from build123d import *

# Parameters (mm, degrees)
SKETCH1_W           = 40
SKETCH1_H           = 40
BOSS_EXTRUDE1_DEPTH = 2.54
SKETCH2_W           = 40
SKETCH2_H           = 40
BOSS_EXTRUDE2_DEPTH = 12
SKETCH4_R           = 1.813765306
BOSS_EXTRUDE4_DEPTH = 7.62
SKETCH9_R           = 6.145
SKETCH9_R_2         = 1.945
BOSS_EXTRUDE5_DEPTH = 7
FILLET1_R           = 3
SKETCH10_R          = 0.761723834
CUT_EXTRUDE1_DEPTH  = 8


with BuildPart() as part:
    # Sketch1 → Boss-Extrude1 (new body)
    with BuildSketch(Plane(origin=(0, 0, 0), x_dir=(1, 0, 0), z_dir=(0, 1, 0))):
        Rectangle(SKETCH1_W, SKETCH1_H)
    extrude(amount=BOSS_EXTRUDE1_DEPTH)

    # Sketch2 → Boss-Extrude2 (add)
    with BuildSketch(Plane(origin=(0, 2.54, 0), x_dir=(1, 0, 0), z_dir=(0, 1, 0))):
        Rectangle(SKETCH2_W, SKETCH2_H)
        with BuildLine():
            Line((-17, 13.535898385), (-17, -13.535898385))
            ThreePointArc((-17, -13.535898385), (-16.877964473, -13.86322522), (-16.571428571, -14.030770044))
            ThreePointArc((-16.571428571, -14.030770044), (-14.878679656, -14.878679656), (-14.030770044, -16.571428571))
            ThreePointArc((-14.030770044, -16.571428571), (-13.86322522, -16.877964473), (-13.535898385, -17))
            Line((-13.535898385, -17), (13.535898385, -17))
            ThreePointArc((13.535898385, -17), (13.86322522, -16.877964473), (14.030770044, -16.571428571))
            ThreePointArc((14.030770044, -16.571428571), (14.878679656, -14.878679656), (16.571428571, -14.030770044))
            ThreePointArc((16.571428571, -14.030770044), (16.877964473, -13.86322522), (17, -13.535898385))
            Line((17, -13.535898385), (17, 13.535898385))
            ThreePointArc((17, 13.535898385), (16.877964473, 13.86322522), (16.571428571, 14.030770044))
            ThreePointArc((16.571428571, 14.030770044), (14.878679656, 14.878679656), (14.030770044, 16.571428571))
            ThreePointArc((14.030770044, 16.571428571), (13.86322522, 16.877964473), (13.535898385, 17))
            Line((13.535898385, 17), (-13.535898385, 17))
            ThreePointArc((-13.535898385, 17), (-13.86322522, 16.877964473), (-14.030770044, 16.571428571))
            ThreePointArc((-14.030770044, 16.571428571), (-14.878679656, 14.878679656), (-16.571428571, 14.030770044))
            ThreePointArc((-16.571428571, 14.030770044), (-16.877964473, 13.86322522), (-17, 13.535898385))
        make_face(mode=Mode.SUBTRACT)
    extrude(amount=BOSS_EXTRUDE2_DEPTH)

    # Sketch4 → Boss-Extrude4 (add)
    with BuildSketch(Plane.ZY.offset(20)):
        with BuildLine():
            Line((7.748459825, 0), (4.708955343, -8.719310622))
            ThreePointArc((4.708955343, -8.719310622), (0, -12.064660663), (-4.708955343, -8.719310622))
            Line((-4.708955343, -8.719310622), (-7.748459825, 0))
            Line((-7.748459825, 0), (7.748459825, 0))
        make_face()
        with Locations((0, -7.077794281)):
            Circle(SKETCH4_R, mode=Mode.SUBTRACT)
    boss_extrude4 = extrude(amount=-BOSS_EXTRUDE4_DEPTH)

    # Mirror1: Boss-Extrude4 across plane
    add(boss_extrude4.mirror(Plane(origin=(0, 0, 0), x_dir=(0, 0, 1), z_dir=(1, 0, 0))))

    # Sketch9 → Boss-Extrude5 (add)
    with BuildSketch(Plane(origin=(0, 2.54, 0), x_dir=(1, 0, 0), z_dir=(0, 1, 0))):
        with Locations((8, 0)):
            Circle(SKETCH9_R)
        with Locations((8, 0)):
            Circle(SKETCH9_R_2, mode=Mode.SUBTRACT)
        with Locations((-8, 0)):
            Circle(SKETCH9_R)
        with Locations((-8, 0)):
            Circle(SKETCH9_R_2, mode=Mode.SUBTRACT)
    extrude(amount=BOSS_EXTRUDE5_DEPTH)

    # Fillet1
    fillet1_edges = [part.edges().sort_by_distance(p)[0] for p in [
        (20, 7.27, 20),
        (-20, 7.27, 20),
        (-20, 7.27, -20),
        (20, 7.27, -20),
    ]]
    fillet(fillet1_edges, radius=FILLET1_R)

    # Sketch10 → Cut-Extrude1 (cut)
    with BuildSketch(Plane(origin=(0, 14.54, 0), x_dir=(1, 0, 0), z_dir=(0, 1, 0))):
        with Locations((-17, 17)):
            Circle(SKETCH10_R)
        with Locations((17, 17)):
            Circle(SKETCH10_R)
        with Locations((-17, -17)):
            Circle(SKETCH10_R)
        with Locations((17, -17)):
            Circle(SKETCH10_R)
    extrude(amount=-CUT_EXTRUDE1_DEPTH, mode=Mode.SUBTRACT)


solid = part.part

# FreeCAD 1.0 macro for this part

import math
import FreeCAD as App
import Part
import Sketcher
Q = App.Units.Quantity


def edges_at(feature, points):
    """Names of the edges that pass closest to the given points."""
    edges = feature.Shape.Edges
    near = lambda p: min(range(len(edges)), key=lambda i: edges[i].distToShape(Part.Vertex(*p))[0])
    return sorted({f"Edge{near(p) + 1}" for p in points})


def add_polygon(sketch, points):
    """Adds a closed chain of lines whose ends are joined by coincident constraints."""
    first, n = sketch.GeometryCount, len(points)
    for a, b in zip(points, points[1:] + points[:1]):
        sketch.addGeometry(Part.LineSegment(App.Vector(*a, 0), App.Vector(*b, 0)), False)
    for i in range(n):
        sketch.addConstraint(Sketcher.Constraint("Coincident", first + i, 2, first + (i + 1) % n, 1))

doc = App.newDocument("Part")
body = doc.addObject("PartDesign::Body", "Body")

sketch1 = doc.addObject("Sketcher::SketchObject", "Sketch")
body.addObject(sketch1)
sketch1.AttachmentSupport = (doc.XZ_Plane, [""])
sketch1.MapMode = "FlatFace"
add_polygon(sketch1, [(-20, -20), (-20, 20), (20, 20), (20, -20)])
sketch1.addConstraint([
    Sketcher.Constraint("Vertical", 0),
    Sketcher.Constraint("Horizontal", 1),
    Sketcher.Constraint("Vertical", 2),
    Sketcher.Constraint("Horizontal", 3),
    Sketcher.Constraint("Symmetric", 0, 2, 2, 2, -1, 1),
    Sketcher.Constraint("Equal", 3, 0),
    Sketcher.Constraint("DistanceX", 1, 1, 1, 2, Q("40 mm")),
])
pad1 = doc.addObject("PartDesign::Pad", "Pad")
body.addObject(pad1)
pad1.Profile = sketch1
pad1.Length = 2.54
pad1.Reversed = True

sketch2 = doc.addObject("Sketcher::SketchObject", "Sketch001")
body.addObject(sketch2)
sketch2.AttachmentSupport = (doc.XZ_Plane, [""])
sketch2.MapMode = "FlatFace"
sketch2.AttachmentOffset = App.Placement(App.Vector(0, 0, -2.54), App.Rotation())
add_polygon(sketch2, [(-20, -20), (-20, 20), (20, 20), (20, -20)])
sketch2.addGeometry(Part.LineSegment(App.Vector(-17, 13.535898, 0), App.Vector(-17, -13.535898, 0)), False)
sketch2.addGeometry(Part.ArcOfCircle(Part.Circle(App.Vector(-16.5, -13.535898, 0), App.Vector(0, 0, 1), 0.5), math.radians(180), math.radians(261.786789)), False)
sketch2.addGeometry(Part.ArcOfCircle(Part.Circle(App.Vector(-17, -17, 0), App.Vector(0, 0, 1), 3), math.radians(8.213211), math.radians(81.786789)), False)
sketch2.addGeometry(Part.ArcOfCircle(Part.Circle(App.Vector(-13.535898, -16.5, 0), App.Vector(0, 0, 1), 0.5), math.radians(-171.786789), math.radians(-90)), False)
sketch2.addGeometry(Part.LineSegment(App.Vector(-13.535898, -17, 0), App.Vector(13.535898, -17, 0)), False)
sketch2.addGeometry(Part.ArcOfCircle(Part.Circle(App.Vector(13.535898, -16.5, 0), App.Vector(0, 0, 1), 0.5), math.radians(-90), math.radians(-8.213211)), False)
sketch2.addGeometry(Part.ArcOfCircle(Part.Circle(App.Vector(17, -17, 0), App.Vector(0, 0, 1), 3), math.radians(98.213211), math.radians(171.786789)), False)
sketch2.addGeometry(Part.ArcOfCircle(Part.Circle(App.Vector(16.5, -13.535898, 0), App.Vector(0, 0, 1), 0.5), math.radians(-81.786789), math.radians(0)), False)
sketch2.addGeometry(Part.LineSegment(App.Vector(17, -13.535898, 0), App.Vector(17, 13.535898, 0)), False)
sketch2.addGeometry(Part.ArcOfCircle(Part.Circle(App.Vector(16.5, 13.535898, 0), App.Vector(0, 0, 1), 0.5), math.radians(0), math.radians(81.786789)), False)
sketch2.addGeometry(Part.ArcOfCircle(Part.Circle(App.Vector(17, 17, 0), App.Vector(0, 0, 1), 3), math.radians(-171.786789), math.radians(-98.213211)), False)
sketch2.addGeometry(Part.ArcOfCircle(Part.Circle(App.Vector(13.535898, 16.5, 0), App.Vector(0, 0, 1), 0.5), math.radians(8.213211), math.radians(90)), False)
sketch2.addGeometry(Part.LineSegment(App.Vector(13.535898, 17, 0), App.Vector(-13.535898, 17, 0)), False)
sketch2.addGeometry(Part.ArcOfCircle(Part.Circle(App.Vector(-13.535898, 16.5, 0), App.Vector(0, 0, 1), 0.5), math.radians(90), math.radians(171.786789)), False)
sketch2.addGeometry(Part.ArcOfCircle(Part.Circle(App.Vector(-17, 17, 0), App.Vector(0, 0, 1), 3), math.radians(-81.786789), math.radians(-8.213211)), False)
sketch2.addGeometry(Part.ArcOfCircle(Part.Circle(App.Vector(-16.5, 13.535898, 0), App.Vector(0, 0, 1), 0.5), math.radians(98.213211), math.radians(180)), False)
sketch2.addConstraint([
    Sketcher.Constraint("Tangent", 4, 2, 5, 1),
    Sketcher.Constraint("Tangent", 5, 2, 6, 2),
    Sketcher.Constraint("Tangent", 6, 1, 7, 1),
    Sketcher.Constraint("Tangent", 7, 2, 8, 1),
    Sketcher.Constraint("Tangent", 8, 2, 9, 1),
    Sketcher.Constraint("Tangent", 9, 2, 10, 2),
    Sketcher.Constraint("Tangent", 10, 1, 11, 1),
    Sketcher.Constraint("Tangent", 11, 2, 12, 1),
    Sketcher.Constraint("Tangent", 12, 2, 13, 1),
    Sketcher.Constraint("Tangent", 13, 2, 14, 2),
    Sketcher.Constraint("Tangent", 14, 1, 15, 1),
    Sketcher.Constraint("Tangent", 15, 2, 16, 1),
    Sketcher.Constraint("Tangent", 16, 2, 17, 1),
    Sketcher.Constraint("Tangent", 17, 2, 18, 2),
    Sketcher.Constraint("Tangent", 18, 1, 19, 1),
    Sketcher.Constraint("Tangent", 19, 2, 4, 1),
    Sketcher.Constraint("Vertical", 0),
    Sketcher.Constraint("Horizontal", 1),
    Sketcher.Constraint("Vertical", 2),
    Sketcher.Constraint("Horizontal", 3),
    Sketcher.Constraint("Vertical", 4),
    Sketcher.Constraint("Horizontal", 8),
    Sketcher.Constraint("Vertical", 12),
    Sketcher.Constraint("Horizontal", 16),
    Sketcher.Constraint("Equal", 5, 7),
    Sketcher.Constraint("Equal", 7, 9),
    Sketcher.Constraint("Equal", 6, 10),
    Sketcher.Constraint("Equal", 9, 11),
    Sketcher.Constraint("Equal", 11, 13),
    Sketcher.Constraint("Equal", 10, 14),
    Sketcher.Constraint("Equal", 13, 15),
    Sketcher.Constraint("Equal", 15, 17),
    Sketcher.Constraint("Equal", 14, 18),
    Sketcher.Constraint("Equal", 17, 19),
    Sketcher.Constraint("Symmetric", 5, 3, 13, 3, -1, 1),
    Sketcher.Constraint("Symmetric", 7, 3, 15, 3, -1, 1),
    Sketcher.Constraint("Symmetric", 10, 3, 18, 3, -1, 1),
    Sketcher.Constraint("Symmetric", 0, 2, 2, 2, -1, 1),
    Sketcher.Constraint("Symmetric", 6, 3, 10, 3, -2),
    Sketcher.Constraint("Horizontal", 10, 3, 7, 2),
    Sketcher.Constraint("Vertical", 18, 3, 4, 2),
    Sketcher.Constraint("Equal", 3, 0),
    Sketcher.Constraint("Equal", 16, 4),
    Sketcher.Constraint("Radius", 6, Q("3 mm")),
    Sketcher.Constraint("Radius", 5, Q("0.5 mm")),
    Sketcher.Constraint("DistanceX", 1, 1, 1, 2, Q("40 mm")),
    Sketcher.Constraint("DistanceX", 6, 3, -1, 1, Q("17 mm")),
])
pad2 = doc.addObject("PartDesign::Pad", "Pad001")
body.addObject(pad2)
pad2.Profile = sketch2
pad2.Length = 12
pad2.Reversed = True

sketch3 = doc.addObject("Sketcher::SketchObject", "Sketch002")
body.addObject(sketch3)
sketch3.AttachmentSupport = (doc.YZ_Plane, [""])
sketch3.MapMode = "FlatFace"
sketch3.AttachmentOffset = App.Placement(App.Vector(0, 0, -20), App.Rotation())
sketch3.addGeometry([
    Part.LineSegment(App.Vector(-8.719311, 4.708955, 0), App.Vector(0, 7.74846, 0)),
    Part.LineSegment(App.Vector(0, 7.74846, 0), App.Vector(0, -7.74846, 0)),
    Part.LineSegment(App.Vector(0, -7.74846, 0), App.Vector(-8.719311, -4.708955, 0)),
    Part.ArcOfCircle(Part.Circle(App.Vector(-7.077794, 0, 0), App.Vector(0, 0, 1), 4.986866), math.radians(109.218278), math.radians(250.781722)),
    Part.Circle(App.Vector(-7.077794, 0, 0), App.Vector(0, 0, 1), 1.813765),
], False)
sketch3.addConstraint([
    Sketcher.Constraint("Coincident", 0, 2, 1, 1),
    Sketcher.Constraint("Coincident", 1, 2, 2, 1),
    Sketcher.Constraint("Tangent", 2, 2, 3, 2),
    Sketcher.Constraint("Tangent", 3, 1, 0, 1),
    Sketcher.Constraint("Vertical", 1),
    Sketcher.Constraint("Coincident", 4, 3, 3, 3),
    Sketcher.Constraint("Symmetric", 0, 2, 1, 2, -1, 1),
    Sketcher.Constraint("PointOnObject", 3, 3, -1),
    Sketcher.Constraint("Diameter", 4, Q("3.627531 mm")),
    Sketcher.Constraint("Radius", 3, Q("4.986866 mm")),
    Sketcher.Constraint("DistanceY", 1, 2, 1, 1, Q("15.49692 mm")),
    Sketcher.Constraint("DistanceX", 2, 2, -1, 1, Q("8.719311 mm")),
])
pad3 = doc.addObject("PartDesign::Pad", "Pad002")
body.addObject(pad3)
pad3.Profile = sketch3
pad3.Length = 7.62
doc.recompute()

mirrored = doc.addObject("PartDesign::Mirrored", "Mirrored")
body.addObject(mirrored)
mirrored.Originals = [pad3]
mirrored.MirrorPlane = (doc.YZ_Plane, [""])
body.Tip = mirrored

sketch4 = doc.addObject("Sketcher::SketchObject", "Sketch003")
body.addObject(sketch4)
sketch4.AttachmentSupport = (doc.XZ_Plane, [""])
sketch4.MapMode = "FlatFace"
sketch4.AttachmentOffset = App.Placement(App.Vector(0, 0, -2.54), App.Rotation())
sketch4.addGeometry([
    Part.Circle(App.Vector(8, 0, 0), App.Vector(0, 0, 1), 6.145),
    Part.Circle(App.Vector(8, 0, 0), App.Vector(0, 0, 1), 1.945),
    Part.Circle(App.Vector(-8, 0, 0), App.Vector(0, 0, 1), 6.145),
    Part.Circle(App.Vector(-8, 0, 0), App.Vector(0, 0, 1), 1.945),
], False)
sketch4.addConstraint([
    Sketcher.Constraint("Coincident", 1, 3, 0, 3),
    Sketcher.Constraint("Coincident", 3, 3, 2, 3),
    Sketcher.Constraint("Equal", 0, 2),
    Sketcher.Constraint("Equal", 1, 3),
    Sketcher.Constraint("Symmetric", 0, 3, 2, 3, -1, 1),
    Sketcher.Constraint("PointOnObject", 0, 3, -1),
    Sketcher.Constraint("Diameter", 0, Q("12.29 mm")),
    Sketcher.Constraint("Diameter", 1, Q("3.89 mm")),
    Sketcher.Constraint("DistanceX", -1, 1, 0, 3, Q("8 mm")),
])
pad4 = doc.addObject("PartDesign::Pad", "Pad003")
body.addObject(pad4)
pad4.Profile = sketch4
pad4.Length = 7
pad4.Reversed = True
doc.recompute()

fillet = doc.addObject("PartDesign::Fillet", "Fillet")
body.addObject(fillet)
fillet.Base = (pad4, edges_at(pad4, [
    (20, 7.27, 20),
    (-20, 7.27, 20),
    (-20, 7.27, -20),
    (20, 7.27, -20),
]))
fillet.Radius = 3

sketch5 = doc.addObject("Sketcher::SketchObject", "Sketch004")
body.addObject(sketch5)
sketch5.AttachmentSupport = (doc.XZ_Plane, [""])
sketch5.MapMode = "FlatFace"
sketch5.AttachmentOffset = App.Placement(App.Vector(0, 0, -14.54), App.Rotation())
sketch5.addGeometry([
    Part.Circle(App.Vector(-17, -17, 0), App.Vector(0, 0, 1), 0.761724),
    Part.Circle(App.Vector(17, -17, 0), App.Vector(0, 0, 1), 0.761724),
    Part.Circle(App.Vector(-17, 17, 0), App.Vector(0, 0, 1), 0.761724),
    Part.Circle(App.Vector(17, 17, 0), App.Vector(0, 0, 1), 0.761724),
], False)
sketch5.addConstraint([
    Sketcher.Constraint("Equal", 0, 1),
    Sketcher.Constraint("Equal", 1, 2),
    Sketcher.Constraint("Equal", 2, 3),
    Sketcher.Constraint("Symmetric", 1, 3, 2, 3, -1, 1),
    Sketcher.Constraint("Symmetric", 0, 3, 3, 3, -1, 1),
    Sketcher.Constraint("Symmetric", 0, 3, 1, 3, -2),
    Sketcher.Constraint("DistanceX", 0, 3, -1, 1, Q("17 mm")),
    Sketcher.Constraint("DistanceY", 0, 3, -1, 1, Q("17 mm")),
    Sketcher.Constraint("Diameter", 0, Q("1.523448 mm")),
])
pocket1 = doc.addObject("PartDesign::Pocket", "Pocket")
body.addObject(pocket1)
pocket1.Profile = sketch5
pocket1.Length = 8
pocket1.Reversed = True

doc.recompute()
